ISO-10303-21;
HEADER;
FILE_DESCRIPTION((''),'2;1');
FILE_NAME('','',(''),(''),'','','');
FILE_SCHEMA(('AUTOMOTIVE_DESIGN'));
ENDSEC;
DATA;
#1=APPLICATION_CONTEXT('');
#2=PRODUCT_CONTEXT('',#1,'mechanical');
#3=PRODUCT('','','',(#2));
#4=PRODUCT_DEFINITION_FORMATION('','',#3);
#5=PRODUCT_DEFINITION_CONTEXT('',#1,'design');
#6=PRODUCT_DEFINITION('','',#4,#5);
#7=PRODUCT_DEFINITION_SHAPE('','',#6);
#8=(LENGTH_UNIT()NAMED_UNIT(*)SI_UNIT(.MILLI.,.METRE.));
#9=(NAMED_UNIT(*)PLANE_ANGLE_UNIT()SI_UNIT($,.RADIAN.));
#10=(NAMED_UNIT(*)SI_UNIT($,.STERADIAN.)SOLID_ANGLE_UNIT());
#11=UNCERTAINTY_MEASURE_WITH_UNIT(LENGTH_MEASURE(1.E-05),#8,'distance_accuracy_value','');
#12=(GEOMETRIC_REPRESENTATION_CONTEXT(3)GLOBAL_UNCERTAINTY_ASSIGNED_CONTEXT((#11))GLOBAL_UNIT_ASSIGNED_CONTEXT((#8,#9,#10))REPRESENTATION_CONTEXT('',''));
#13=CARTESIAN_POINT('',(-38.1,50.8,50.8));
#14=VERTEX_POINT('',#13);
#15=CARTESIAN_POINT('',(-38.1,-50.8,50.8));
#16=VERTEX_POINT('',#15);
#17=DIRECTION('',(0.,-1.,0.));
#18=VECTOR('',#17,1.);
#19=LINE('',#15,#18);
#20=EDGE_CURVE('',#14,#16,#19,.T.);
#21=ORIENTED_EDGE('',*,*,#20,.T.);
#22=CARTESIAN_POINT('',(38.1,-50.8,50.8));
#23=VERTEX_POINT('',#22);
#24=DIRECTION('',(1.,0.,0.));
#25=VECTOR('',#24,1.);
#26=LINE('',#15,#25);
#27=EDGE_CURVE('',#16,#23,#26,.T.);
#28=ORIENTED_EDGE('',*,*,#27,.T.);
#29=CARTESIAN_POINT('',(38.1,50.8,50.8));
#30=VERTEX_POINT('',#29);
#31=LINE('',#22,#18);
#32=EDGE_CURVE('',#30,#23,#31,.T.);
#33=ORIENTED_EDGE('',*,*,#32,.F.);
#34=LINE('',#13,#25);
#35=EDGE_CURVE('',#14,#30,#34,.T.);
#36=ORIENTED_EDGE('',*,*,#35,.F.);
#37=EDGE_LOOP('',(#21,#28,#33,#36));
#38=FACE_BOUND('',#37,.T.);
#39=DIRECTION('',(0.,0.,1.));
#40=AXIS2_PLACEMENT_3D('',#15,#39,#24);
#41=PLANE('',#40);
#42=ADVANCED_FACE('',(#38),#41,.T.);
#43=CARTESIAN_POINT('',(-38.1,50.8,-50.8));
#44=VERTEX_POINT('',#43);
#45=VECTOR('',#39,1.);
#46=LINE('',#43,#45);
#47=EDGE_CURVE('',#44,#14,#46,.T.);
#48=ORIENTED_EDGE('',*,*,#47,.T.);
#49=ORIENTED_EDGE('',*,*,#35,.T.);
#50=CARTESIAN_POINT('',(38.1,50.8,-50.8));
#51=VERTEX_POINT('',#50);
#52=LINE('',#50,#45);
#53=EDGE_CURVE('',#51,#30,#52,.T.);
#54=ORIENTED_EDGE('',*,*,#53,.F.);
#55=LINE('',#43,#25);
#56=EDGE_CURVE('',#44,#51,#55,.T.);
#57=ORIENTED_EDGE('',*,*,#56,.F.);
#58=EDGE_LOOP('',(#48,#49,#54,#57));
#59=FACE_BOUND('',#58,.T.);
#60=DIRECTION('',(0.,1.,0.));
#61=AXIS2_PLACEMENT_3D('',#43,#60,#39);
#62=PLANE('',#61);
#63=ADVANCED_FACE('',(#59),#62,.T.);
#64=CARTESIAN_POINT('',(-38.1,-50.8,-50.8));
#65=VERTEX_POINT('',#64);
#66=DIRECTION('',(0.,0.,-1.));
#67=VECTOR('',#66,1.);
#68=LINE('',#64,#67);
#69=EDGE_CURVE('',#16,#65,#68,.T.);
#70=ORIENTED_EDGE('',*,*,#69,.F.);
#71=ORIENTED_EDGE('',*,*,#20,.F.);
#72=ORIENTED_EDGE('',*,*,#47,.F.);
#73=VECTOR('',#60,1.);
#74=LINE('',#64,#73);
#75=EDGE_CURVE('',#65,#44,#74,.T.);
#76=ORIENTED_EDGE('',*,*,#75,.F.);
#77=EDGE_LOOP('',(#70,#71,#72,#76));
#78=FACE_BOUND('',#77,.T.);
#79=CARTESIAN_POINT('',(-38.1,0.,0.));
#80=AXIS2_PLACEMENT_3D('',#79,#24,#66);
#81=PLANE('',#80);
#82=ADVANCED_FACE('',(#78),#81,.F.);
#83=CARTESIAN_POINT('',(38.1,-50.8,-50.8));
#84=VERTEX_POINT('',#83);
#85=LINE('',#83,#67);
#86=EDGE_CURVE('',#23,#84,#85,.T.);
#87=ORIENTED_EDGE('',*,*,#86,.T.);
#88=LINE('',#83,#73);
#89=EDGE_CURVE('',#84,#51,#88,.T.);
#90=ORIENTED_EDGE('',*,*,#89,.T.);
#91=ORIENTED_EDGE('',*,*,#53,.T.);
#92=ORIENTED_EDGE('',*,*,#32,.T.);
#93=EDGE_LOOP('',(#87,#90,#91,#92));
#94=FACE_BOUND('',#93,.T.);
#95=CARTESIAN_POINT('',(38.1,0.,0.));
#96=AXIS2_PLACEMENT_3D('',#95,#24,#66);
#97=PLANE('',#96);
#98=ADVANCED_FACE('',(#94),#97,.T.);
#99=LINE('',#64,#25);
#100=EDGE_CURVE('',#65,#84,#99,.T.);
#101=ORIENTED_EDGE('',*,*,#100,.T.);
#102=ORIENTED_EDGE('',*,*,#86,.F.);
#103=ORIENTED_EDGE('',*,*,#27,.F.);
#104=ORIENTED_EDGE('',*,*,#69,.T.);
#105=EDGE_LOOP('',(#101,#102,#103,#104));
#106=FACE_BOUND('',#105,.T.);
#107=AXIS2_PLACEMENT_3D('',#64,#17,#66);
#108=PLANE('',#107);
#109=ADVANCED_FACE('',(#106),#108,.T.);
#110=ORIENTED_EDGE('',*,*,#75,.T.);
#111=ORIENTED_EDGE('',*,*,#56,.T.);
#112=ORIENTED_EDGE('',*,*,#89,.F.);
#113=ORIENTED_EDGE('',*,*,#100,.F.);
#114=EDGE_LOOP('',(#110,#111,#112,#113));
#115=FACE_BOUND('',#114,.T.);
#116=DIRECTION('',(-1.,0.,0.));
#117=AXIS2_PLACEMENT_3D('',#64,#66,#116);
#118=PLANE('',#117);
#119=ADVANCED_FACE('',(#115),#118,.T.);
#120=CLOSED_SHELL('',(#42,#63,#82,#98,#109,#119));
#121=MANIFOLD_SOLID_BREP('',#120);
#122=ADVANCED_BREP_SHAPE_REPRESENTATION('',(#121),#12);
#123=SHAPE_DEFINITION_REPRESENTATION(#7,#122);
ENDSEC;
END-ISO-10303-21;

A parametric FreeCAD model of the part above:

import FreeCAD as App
import Part
import Sketcher
Q = App.Units.Quantity


def add_polygon(sketch, points):
    """Adds a closed chain of lines whose ends are joined by coincident constraints."""
    first, n = sketch.GeometryCount, len(points)
    for a, b in zip(points, points[1:] + points[:1]):
        sketch.addGeometry(Part.LineSegment(App.Vector(*a, 0), App.Vector(*b, 0)), False)
    for i in range(n):
        sketch.addConstraint(Sketcher.Constraint("Coincident", first + i, 2, first + (i + 1) % n, 1))

doc = App.newDocument("Part")
params = doc.addObject("Spreadsheet::Sheet", "Params")
for row, (alias, value) in enumerate([
    ("sketch1_width", "4 in"),
    ("pad1_length", "1.5 in"),
    ("pad1_length2", "1.5 in"),
], start=1):
    params.set(f"A{row}", alias)
    params.set(f"B{row}", "=" + value)
    params.setAlias(f"B{row}", alias)

body = doc.addObject("PartDesign::Body", "Body")

sketch1 = body.newObject("Sketcher::SketchObject", "Sketch")
sketch1.AttachmentSupport = (doc.getObject("YZ_Plane"), [""])
sketch1.MapMode = "FlatFace"
add_polygon(sketch1, [(51, 51), (-51, 51), (-51, -51), (51, -51)])
sketch1.addConstraint(Sketcher.Constraint("Horizontal", 0))
sketch1.addConstraint(Sketcher.Constraint("Vertical", 1))
sketch1.addConstraint(Sketcher.Constraint("Horizontal", 2))
sketch1.addConstraint(Sketcher.Constraint("Vertical", 3))
sketch1.addConstraint(Sketcher.Constraint("Symmetric", 0, 2, 2, 2, -1, 1))
sketch1.addConstraint(Sketcher.Constraint("Equal", 2, 1))
sketch1.addConstraint(Sketcher.Constraint("DistanceX", 0, 2, 0, 1, Q("4 in")))
sketch1.setExpression("Constraints[10]", "Params.sketch1_width")
pad1 = body.newObject("PartDesign::Pad", "Pad")
pad1.Profile = sketch1
pad1.Type = "TwoLengths"
pad1.setExpression("Length", "Params.pad1_length")
pad1.setExpression("Length2", "Params.pad1_length2")

doc.recompute()
